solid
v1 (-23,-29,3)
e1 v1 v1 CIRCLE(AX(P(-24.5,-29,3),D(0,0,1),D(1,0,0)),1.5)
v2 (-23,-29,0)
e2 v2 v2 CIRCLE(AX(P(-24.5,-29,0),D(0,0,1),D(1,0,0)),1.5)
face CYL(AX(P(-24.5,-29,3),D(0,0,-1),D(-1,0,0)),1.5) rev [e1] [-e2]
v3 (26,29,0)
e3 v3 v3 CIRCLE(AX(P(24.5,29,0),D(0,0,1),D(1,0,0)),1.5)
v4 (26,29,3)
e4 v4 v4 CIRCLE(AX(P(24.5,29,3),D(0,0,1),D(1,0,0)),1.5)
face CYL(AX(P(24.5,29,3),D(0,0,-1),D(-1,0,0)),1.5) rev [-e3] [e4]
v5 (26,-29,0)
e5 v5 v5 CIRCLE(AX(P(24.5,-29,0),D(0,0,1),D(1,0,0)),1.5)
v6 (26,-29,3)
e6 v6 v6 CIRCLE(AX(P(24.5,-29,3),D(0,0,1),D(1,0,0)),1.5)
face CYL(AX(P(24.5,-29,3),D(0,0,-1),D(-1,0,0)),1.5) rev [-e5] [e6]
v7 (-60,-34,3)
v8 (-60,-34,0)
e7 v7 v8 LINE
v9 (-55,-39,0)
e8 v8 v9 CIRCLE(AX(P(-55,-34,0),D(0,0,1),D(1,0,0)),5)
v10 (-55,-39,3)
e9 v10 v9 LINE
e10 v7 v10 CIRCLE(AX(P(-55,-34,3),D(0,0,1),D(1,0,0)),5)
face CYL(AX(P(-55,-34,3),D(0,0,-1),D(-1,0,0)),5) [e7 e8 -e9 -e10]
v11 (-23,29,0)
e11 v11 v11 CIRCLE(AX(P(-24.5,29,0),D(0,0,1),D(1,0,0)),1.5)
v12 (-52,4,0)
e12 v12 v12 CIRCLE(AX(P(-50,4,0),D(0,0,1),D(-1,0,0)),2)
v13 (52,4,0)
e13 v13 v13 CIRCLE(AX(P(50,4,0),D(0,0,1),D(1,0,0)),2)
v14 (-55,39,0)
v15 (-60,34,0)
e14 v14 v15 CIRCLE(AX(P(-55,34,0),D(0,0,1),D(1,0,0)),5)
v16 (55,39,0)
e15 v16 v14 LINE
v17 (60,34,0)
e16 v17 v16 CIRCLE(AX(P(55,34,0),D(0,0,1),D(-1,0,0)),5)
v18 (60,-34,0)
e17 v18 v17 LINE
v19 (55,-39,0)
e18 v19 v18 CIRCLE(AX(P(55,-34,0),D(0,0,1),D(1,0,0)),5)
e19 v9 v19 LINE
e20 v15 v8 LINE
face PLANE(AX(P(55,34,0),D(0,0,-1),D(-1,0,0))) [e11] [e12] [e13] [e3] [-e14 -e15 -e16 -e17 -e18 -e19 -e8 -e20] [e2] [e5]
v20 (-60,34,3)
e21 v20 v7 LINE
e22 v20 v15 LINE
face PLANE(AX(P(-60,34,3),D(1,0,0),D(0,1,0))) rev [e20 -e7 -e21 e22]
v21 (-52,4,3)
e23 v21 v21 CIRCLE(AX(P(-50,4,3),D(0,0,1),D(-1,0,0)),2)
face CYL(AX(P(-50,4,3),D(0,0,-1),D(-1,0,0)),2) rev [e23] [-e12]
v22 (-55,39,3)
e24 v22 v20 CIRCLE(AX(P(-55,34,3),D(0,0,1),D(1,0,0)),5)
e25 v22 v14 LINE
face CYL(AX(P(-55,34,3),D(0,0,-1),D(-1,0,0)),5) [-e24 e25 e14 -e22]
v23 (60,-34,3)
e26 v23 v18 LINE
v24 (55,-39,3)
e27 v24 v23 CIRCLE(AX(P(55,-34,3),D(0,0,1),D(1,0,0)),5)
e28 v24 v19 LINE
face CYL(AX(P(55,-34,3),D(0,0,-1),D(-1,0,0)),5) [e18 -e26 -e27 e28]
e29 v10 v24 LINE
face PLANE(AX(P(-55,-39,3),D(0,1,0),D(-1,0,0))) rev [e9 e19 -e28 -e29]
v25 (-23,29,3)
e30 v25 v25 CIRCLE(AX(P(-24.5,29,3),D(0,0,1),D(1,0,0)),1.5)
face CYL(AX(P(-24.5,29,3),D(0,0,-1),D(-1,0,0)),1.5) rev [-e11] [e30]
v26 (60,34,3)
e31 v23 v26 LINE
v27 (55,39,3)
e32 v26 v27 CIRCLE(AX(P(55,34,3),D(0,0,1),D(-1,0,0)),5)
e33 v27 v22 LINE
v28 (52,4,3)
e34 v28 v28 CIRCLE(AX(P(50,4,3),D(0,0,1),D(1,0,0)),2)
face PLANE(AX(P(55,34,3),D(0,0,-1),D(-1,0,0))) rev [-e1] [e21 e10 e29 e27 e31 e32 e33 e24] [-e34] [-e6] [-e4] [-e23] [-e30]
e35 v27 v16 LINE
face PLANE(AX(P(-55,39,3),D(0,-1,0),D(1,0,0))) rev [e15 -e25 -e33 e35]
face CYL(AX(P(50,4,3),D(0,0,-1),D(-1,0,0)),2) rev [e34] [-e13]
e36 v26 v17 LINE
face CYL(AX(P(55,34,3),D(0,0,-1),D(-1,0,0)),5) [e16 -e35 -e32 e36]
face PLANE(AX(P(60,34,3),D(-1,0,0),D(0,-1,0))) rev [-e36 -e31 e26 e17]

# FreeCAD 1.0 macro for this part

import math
import FreeCAD as App
import Part
import Sketcher
Q = App.Units.Quantity

doc = App.newDocument("Part")
params = doc.addObject("Spreadsheet::Sheet", "Params")
for row, (alias, value) in enumerate([
    ("sketch1_diameter", "3 mm"),
    ("sketch1_diameter2", "4 mm"),
    ("sketch1_radius", "5 mm"),
    ("sketch1_width", "110 mm"),
    ("sketch1_height", "68 mm"),
    ("pad1_length", "3 mm"),
], start=1):
    params.set(f"A{row}", alias)
    params.set(f"B{row}", "=" + value)
    params.setAlias(f"B{row}", alias)

body = doc.addObject("PartDesign::Body", "Body")

# Sketch on XY plane
sketch1 = body.newObject("Sketcher::SketchObject", "Sketch")
sketch1.AttachmentSupport = (doc.getObject("XY_Plane"), [""])
sketch1.MapMode = "FlatFace"
sketch1.addGeometry(Part.LineSegment(App.Vector(55, 39, 0), App.Vector(-55, 39, 0)), False)
sketch1.addGeometry(Part.ArcOfCircle(Part.Circle(App.Vector(-55, 34, 0), App.Vector(0, 0, 1), 5), math.radians(90), math.radians(180)), False)
sketch1.addGeometry(Part.LineSegment(App.Vector(-60, 34, 0), App.Vector(-60, -34, 0)), False)
sketch1.addGeometry(Part.ArcOfCircle(Part.Circle(App.Vector(-55, -34, 0), App.Vector(0, 0, 1), 5), math.radians(180), math.radians(270)), False)
sketch1.addGeometry(Part.LineSegment(App.Vector(-55, -39, 0), App.Vector(55, -39, 0)), False)
sketch1.addGeometry(Part.ArcOfCircle(Part.Circle(App.Vector(55, -34, 0), App.Vector(0, 0, 1), 5), math.radians(-90), math.radians(0)), False)
sketch1.addGeometry(Part.LineSegment(App.Vector(60, -34, 0), App.Vector(60, 34, 0)), False)
sketch1.addGeometry(Part.ArcOfCircle(Part.Circle(App.Vector(55, 34, 0), App.Vector(0, 0, 1), 5), math.radians(0), math.radians(90)), False)
sketch1.addGeometry(Part.Circle(App.Vector(24.5, -29, 0), App.Vector(0, 0, 1), 1.5), False)
sketch1.addGeometry(Part.Circle(App.Vector(-24.5, -29, 0), App.Vector(0, 0, 1), 1.5), False)
sketch1.addGeometry(Part.Circle(App.Vector(50, 4, 0), App.Vector(0, 0, 1), 2), False)
sketch1.addGeometry(Part.Circle(App.Vector(24.5, 29, 0), App.Vector(0, 0, 1), 1.5), False)
sketch1.addGeometry(Part.Circle(App.Vector(-50, 4, 0), App.Vector(0, 0, 1), 2), False)
sketch1.addGeometry(Part.Circle(App.Vector(-24.5, 29, 0), App.Vector(0, 0, 1), 1.5), False)
sketch1.addConstraint(Sketcher.Constraint("Tangent", 0, 2, 1, 1))
sketch1.addConstraint(Sketcher.Constraint("Tangent", 1, 2, 2, 1))
sketch1.addConstraint(Sketcher.Constraint("Tangent", 2, 2, 3, 1))
sketch1.addConstraint(Sketcher.Constraint("Tangent", 3, 2, 4, 1))
sketch1.addConstraint(Sketcher.Constraint("Tangent", 4, 2, 5, 1))
sketch1.addConstraint(Sketcher.Constraint("Tangent", 5, 2, 6, 1))
sketch1.addConstraint(Sketcher.Constraint("Tangent", 6, 2, 7, 1))
sketch1.addConstraint(Sketcher.Constraint("Tangent", 7, 2, 0, 1))
sketch1.addConstraint(Sketcher.Constraint("Horizontal", 0))
sketch1.addConstraint(Sketcher.Constraint("Vertical", 2))
sketch1.addConstraint(Sketcher.Constraint("Horizontal", 4))
sketch1.addConstraint(Sketcher.Constraint("Vertical", 6))
sketch1.addConstraint(Sketcher.Constraint("Equal", 1, 3))
sketch1.addConstraint(Sketcher.Constraint("Equal", 3, 5))
sketch1.addConstraint(Sketcher.Constraint("Equal", 5, 7))
sketch1.addConstraint(Sketcher.Constraint("Equal", 8, 9))
sketch1.addConstraint(Sketcher.Constraint("Equal", 9, 11))
sketch1.addConstraint(Sketcher.Constraint("Equal", 10, 12))
sketch1.addConstraint(Sketcher.Constraint("Equal", 11, 13))
sketch1.addConstraint(Sketcher.Constraint("Symmetric", 1, 3, 5, 3, -1, 1))
sketch1.addConstraint(Sketcher.Constraint("Symmetric", 9, 3, 11, 3, -1, 1))
sketch1.addConstraint(Sketcher.Constraint("Symmetric", 8, 3, 13, 3, -1, 1))
sketch1.addConstraint(Sketcher.Constraint("Symmetric", 8, 3, 9, 3, -2))
sketch1.addConstraint(Sketcher.Constraint("Symmetric", 10, 3, 12, 3, -2))
sketch1.addConstraint(Sketcher.Constraint("Diameter", 8, Q("3 mm")))
sketch1.addConstraint(Sketcher.Constraint("Diameter", 10, Q("4 mm")))
sketch1.addConstraint(Sketcher.Constraint("Radius", 1, Q("5 mm")))
sketch1.addConstraint(Sketcher.Constraint("DistanceX", 0, 2, 0, 1, Q("110 mm")))
sketch1.addConstraint(Sketcher.Constraint("DistanceY", 2, 2, 2, 1, Q("68 mm")))
sketch1.addConstraint(Sketcher.Constraint("DistanceY", 8, 3, -1, 1, Q("29 mm")))
sketch1.addConstraint(Sketcher.Constraint("DistanceX", -1, 1, 10, 3, Q("50 mm")))
sketch1.addConstraint(Sketcher.Constraint("DistanceY", -1, 1, 10, 3, Q("4 mm")))
sketch1.addConstraint(Sketcher.Constraint("DistanceX", 9, 3, 8, 3, Q("49 mm")))
sketch1.setExpression("Constraints[24]", "Params.sketch1_diameter")
sketch1.setExpression("Constraints[25]", "Params.sketch1_diameter2")
sketch1.setExpression("Constraints[26]", "Params.sketch1_radius")
sketch1.setExpression("Constraints[27]", "Params.sketch1_width")
sketch1.setExpression("Constraints[28]", "Params.sketch1_height")
pad1 = body.newObject("PartDesign::Pad", "Pad")
pad1.Profile = sketch1
pad1.setExpression("Length", "Params.pad1_length")

doc.recompute()
